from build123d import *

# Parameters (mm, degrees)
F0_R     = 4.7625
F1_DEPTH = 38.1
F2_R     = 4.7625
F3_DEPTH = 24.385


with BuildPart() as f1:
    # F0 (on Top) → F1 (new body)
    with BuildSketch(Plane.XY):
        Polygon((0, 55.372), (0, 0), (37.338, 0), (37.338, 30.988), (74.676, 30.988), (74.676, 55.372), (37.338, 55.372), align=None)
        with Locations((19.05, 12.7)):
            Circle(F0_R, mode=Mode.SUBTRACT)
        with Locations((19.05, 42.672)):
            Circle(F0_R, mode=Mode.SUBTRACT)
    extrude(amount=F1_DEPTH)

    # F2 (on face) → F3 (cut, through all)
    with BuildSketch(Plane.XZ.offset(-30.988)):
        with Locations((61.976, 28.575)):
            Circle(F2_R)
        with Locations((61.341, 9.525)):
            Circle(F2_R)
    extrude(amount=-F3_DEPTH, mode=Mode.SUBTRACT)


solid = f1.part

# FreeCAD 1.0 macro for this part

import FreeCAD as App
import Part
import Sketcher
Q = App.Units.Quantity


def add_polygon(sketch, points):
    """Adds a closed chain of lines whose ends are joined by coincident constraints."""
    first, n = sketch.GeometryCount, len(points)
    for a, b in zip(points, points[1:] + points[:1]):
        sketch.addGeometry(Part.LineSegment(App.Vector(*a, 0), App.Vector(*b, 0)), False)
    for i in range(n):
        sketch.addConstraint(Sketcher.Constraint("Coincident", first + i, 2, first + (i + 1) % n, 1))

doc = App.newDocument("Part")
body = doc.addObject("PartDesign::Body", "Body")

sketch1 = body.newObject("Sketcher::SketchObject", "Sketch")
sketch1.AttachmentSupport = (doc.getObject("XY_Plane"), [""])
sketch1.MapMode = "FlatFace"
add_polygon(sketch1, [(0, 55.372), (0, 0), (37.338, 0), (37.338, 30.988), (74.676, 30.988), (74.676, 55.372)])
sketch1.addGeometry(Part.Circle(App.Vector(19.05, 12.7, 0), App.Vector(0, 0, 1), 4.7625), False)
sketch1.addGeometry(Part.Circle(App.Vector(19.05, 42.672, 0), App.Vector(0, 0, 1), 4.7625), False)
sketch1.addConstraint(Sketcher.Constraint("Vertical", 0))
sketch1.addConstraint(Sketcher.Constraint("Horizontal", 1))
sketch1.addConstraint(Sketcher.Constraint("Vertical", 2))
sketch1.addConstraint(Sketcher.Constraint("Horizontal", 3))
sketch1.addConstraint(Sketcher.Constraint("Vertical", 4))
sketch1.addConstraint(Sketcher.Constraint("Horizontal", 5))
sketch1.addConstraint(Sketcher.Constraint("Coincident", 0, 2, -1, 1))
sketch1.addConstraint(Sketcher.Constraint("Equal", 6, 7))
sketch1.addConstraint(Sketcher.Constraint("Vertical", 6, 3, 7, 3))
sketch1.addConstraint(Sketcher.Constraint("Equal", 1, 3))
sketch1.addConstraint(Sketcher.Constraint("Diameter", 6, Q("0.375 in")))
sketch1.addConstraint(Sketcher.Constraint("DistanceX", 1, 1, 1, 2, Q("1.47 in")))
sketch1.addConstraint(Sketcher.Constraint("DistanceY", 0, 2, 0, 1, Q("2.18 in")))
sketch1.addConstraint(Sketcher.Constraint("DistanceY", 2, 1, 2, 2, Q("1.22 in")))
sketch1.addConstraint(Sketcher.Constraint("DistanceY", -1, 1, 6, 3, Q("0.5 in")))
sketch1.addConstraint(Sketcher.Constraint("DistanceY", 7, 3, 4, 2, Q("0.5 in")))
sketch1.addConstraint(Sketcher.Constraint("DistanceX", -1, 1, 6, 3, Q("0.75 in")))
pad1 = body.newObject("PartDesign::Pad", "Pad")
pad1.Profile = sketch1
pad1.Length = Q("1.5 in")

sketch2 = body.newObject("Sketcher::SketchObject", "Sketch001")
sketch2.AttachmentSupport = (doc.getObject("XZ_Plane"), [""])
sketch2.MapMode = "FlatFace"
sketch2.AttachmentOffset = App.Placement(App.Vector(0, 0, -1.22 * 25.4), App.Rotation())
sketch2.addGeometry(Part.Circle(App.Vector(61.976, 28.575, 0), App.Vector(0, 0, 1), 4.7625), False)
sketch2.addGeometry(Part.Circle(App.Vector(61.341, 9.525, 0), App.Vector(0, 0, 1), 4.7625), False)
sketch2.addConstraint(Sketcher.Constraint("Equal", 0, 1))
sketch2.addConstraint(Sketcher.Constraint("Diameter", 0, Q("0.375 in")))
sketch2.addConstraint(Sketcher.Constraint("DistanceX", -1, 1, 0, 3, Q("2.44 in")))
sketch2.addConstraint(Sketcher.Constraint("DistanceY", 1, 3, 0, 3, Q("0.75 in")))
sketch2.addConstraint(Sketcher.Constraint("DistanceY", -1, 1, 0, 3, Q("1.125 in")))
sketch2.addConstraint(Sketcher.Constraint("DistanceX", -1, 1, 1, 3, Q("2.415 in")))
pocket1 = body.newObject("PartDesign::Pocket", "Pocket")
pocket1.Profile = sketch2
pocket1.Type = "ThroughAll"

doc.recompute()
